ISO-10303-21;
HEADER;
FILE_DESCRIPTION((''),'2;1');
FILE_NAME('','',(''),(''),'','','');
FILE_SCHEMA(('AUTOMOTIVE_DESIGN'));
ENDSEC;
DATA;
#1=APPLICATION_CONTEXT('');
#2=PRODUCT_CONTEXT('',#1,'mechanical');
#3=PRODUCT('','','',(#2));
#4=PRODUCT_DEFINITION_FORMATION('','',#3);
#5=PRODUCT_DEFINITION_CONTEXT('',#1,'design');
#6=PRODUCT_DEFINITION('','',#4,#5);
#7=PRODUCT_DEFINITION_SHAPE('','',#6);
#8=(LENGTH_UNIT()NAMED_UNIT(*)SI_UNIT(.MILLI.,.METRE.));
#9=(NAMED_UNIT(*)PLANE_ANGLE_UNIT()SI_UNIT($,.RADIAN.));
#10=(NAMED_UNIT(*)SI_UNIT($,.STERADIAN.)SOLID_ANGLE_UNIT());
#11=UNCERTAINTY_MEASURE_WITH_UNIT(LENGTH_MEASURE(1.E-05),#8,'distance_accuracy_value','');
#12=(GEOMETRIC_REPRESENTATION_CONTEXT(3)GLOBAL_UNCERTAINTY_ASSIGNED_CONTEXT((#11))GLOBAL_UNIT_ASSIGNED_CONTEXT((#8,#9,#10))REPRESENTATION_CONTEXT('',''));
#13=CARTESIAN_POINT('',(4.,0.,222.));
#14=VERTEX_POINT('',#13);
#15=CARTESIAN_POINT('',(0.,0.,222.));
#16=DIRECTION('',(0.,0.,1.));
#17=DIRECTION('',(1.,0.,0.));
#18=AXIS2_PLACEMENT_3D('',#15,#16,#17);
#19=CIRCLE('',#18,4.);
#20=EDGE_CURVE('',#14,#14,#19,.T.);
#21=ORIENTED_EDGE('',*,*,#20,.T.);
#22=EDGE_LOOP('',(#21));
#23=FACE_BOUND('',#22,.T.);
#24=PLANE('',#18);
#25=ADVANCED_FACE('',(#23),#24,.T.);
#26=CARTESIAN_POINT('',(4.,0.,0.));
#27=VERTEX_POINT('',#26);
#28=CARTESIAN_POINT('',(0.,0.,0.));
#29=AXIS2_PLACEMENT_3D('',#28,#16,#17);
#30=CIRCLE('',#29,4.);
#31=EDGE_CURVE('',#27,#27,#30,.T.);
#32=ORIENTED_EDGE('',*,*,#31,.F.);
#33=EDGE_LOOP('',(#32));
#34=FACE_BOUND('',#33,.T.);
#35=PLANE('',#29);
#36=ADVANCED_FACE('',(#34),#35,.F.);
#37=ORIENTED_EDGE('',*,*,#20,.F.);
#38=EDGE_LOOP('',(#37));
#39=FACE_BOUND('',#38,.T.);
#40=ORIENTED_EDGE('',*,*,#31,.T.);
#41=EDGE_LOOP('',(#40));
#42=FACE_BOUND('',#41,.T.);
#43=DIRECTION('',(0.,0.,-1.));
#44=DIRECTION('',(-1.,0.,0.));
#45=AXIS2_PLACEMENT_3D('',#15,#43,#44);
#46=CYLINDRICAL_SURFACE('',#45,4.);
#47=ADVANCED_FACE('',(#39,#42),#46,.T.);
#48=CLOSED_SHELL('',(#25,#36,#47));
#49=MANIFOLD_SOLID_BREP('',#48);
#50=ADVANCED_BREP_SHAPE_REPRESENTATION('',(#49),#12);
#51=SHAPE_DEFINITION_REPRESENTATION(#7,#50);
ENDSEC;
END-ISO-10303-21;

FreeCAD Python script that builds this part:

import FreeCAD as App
import Part
import Sketcher
Q = App.Units.Quantity

doc = App.newDocument("Part")
body = doc.addObject("PartDesign::Body", "Body")

sketch1 = body.newObject("Sketcher::SketchObject", "Sketch")
sketch1.AttachmentSupport = (doc.getObject("XY_Plane"), [""])
sketch1.MapMode = "FlatFace"
sketch1.addGeometry(Part.Circle(App.Vector(0, 0, 0), App.Vector(0, 0, 1), 4), False)
sketch1.addConstraint([
    Sketcher.Constraint("Coincident", 0, 3, -1, 1),
    Sketcher.Constraint("Diameter", 0, Q("8 mm")),
])
pad1 = body.newObject("PartDesign::Pad", "Pad")
pad1.Profile = sketch1
pad1.Length = 222

doc.recompute()
